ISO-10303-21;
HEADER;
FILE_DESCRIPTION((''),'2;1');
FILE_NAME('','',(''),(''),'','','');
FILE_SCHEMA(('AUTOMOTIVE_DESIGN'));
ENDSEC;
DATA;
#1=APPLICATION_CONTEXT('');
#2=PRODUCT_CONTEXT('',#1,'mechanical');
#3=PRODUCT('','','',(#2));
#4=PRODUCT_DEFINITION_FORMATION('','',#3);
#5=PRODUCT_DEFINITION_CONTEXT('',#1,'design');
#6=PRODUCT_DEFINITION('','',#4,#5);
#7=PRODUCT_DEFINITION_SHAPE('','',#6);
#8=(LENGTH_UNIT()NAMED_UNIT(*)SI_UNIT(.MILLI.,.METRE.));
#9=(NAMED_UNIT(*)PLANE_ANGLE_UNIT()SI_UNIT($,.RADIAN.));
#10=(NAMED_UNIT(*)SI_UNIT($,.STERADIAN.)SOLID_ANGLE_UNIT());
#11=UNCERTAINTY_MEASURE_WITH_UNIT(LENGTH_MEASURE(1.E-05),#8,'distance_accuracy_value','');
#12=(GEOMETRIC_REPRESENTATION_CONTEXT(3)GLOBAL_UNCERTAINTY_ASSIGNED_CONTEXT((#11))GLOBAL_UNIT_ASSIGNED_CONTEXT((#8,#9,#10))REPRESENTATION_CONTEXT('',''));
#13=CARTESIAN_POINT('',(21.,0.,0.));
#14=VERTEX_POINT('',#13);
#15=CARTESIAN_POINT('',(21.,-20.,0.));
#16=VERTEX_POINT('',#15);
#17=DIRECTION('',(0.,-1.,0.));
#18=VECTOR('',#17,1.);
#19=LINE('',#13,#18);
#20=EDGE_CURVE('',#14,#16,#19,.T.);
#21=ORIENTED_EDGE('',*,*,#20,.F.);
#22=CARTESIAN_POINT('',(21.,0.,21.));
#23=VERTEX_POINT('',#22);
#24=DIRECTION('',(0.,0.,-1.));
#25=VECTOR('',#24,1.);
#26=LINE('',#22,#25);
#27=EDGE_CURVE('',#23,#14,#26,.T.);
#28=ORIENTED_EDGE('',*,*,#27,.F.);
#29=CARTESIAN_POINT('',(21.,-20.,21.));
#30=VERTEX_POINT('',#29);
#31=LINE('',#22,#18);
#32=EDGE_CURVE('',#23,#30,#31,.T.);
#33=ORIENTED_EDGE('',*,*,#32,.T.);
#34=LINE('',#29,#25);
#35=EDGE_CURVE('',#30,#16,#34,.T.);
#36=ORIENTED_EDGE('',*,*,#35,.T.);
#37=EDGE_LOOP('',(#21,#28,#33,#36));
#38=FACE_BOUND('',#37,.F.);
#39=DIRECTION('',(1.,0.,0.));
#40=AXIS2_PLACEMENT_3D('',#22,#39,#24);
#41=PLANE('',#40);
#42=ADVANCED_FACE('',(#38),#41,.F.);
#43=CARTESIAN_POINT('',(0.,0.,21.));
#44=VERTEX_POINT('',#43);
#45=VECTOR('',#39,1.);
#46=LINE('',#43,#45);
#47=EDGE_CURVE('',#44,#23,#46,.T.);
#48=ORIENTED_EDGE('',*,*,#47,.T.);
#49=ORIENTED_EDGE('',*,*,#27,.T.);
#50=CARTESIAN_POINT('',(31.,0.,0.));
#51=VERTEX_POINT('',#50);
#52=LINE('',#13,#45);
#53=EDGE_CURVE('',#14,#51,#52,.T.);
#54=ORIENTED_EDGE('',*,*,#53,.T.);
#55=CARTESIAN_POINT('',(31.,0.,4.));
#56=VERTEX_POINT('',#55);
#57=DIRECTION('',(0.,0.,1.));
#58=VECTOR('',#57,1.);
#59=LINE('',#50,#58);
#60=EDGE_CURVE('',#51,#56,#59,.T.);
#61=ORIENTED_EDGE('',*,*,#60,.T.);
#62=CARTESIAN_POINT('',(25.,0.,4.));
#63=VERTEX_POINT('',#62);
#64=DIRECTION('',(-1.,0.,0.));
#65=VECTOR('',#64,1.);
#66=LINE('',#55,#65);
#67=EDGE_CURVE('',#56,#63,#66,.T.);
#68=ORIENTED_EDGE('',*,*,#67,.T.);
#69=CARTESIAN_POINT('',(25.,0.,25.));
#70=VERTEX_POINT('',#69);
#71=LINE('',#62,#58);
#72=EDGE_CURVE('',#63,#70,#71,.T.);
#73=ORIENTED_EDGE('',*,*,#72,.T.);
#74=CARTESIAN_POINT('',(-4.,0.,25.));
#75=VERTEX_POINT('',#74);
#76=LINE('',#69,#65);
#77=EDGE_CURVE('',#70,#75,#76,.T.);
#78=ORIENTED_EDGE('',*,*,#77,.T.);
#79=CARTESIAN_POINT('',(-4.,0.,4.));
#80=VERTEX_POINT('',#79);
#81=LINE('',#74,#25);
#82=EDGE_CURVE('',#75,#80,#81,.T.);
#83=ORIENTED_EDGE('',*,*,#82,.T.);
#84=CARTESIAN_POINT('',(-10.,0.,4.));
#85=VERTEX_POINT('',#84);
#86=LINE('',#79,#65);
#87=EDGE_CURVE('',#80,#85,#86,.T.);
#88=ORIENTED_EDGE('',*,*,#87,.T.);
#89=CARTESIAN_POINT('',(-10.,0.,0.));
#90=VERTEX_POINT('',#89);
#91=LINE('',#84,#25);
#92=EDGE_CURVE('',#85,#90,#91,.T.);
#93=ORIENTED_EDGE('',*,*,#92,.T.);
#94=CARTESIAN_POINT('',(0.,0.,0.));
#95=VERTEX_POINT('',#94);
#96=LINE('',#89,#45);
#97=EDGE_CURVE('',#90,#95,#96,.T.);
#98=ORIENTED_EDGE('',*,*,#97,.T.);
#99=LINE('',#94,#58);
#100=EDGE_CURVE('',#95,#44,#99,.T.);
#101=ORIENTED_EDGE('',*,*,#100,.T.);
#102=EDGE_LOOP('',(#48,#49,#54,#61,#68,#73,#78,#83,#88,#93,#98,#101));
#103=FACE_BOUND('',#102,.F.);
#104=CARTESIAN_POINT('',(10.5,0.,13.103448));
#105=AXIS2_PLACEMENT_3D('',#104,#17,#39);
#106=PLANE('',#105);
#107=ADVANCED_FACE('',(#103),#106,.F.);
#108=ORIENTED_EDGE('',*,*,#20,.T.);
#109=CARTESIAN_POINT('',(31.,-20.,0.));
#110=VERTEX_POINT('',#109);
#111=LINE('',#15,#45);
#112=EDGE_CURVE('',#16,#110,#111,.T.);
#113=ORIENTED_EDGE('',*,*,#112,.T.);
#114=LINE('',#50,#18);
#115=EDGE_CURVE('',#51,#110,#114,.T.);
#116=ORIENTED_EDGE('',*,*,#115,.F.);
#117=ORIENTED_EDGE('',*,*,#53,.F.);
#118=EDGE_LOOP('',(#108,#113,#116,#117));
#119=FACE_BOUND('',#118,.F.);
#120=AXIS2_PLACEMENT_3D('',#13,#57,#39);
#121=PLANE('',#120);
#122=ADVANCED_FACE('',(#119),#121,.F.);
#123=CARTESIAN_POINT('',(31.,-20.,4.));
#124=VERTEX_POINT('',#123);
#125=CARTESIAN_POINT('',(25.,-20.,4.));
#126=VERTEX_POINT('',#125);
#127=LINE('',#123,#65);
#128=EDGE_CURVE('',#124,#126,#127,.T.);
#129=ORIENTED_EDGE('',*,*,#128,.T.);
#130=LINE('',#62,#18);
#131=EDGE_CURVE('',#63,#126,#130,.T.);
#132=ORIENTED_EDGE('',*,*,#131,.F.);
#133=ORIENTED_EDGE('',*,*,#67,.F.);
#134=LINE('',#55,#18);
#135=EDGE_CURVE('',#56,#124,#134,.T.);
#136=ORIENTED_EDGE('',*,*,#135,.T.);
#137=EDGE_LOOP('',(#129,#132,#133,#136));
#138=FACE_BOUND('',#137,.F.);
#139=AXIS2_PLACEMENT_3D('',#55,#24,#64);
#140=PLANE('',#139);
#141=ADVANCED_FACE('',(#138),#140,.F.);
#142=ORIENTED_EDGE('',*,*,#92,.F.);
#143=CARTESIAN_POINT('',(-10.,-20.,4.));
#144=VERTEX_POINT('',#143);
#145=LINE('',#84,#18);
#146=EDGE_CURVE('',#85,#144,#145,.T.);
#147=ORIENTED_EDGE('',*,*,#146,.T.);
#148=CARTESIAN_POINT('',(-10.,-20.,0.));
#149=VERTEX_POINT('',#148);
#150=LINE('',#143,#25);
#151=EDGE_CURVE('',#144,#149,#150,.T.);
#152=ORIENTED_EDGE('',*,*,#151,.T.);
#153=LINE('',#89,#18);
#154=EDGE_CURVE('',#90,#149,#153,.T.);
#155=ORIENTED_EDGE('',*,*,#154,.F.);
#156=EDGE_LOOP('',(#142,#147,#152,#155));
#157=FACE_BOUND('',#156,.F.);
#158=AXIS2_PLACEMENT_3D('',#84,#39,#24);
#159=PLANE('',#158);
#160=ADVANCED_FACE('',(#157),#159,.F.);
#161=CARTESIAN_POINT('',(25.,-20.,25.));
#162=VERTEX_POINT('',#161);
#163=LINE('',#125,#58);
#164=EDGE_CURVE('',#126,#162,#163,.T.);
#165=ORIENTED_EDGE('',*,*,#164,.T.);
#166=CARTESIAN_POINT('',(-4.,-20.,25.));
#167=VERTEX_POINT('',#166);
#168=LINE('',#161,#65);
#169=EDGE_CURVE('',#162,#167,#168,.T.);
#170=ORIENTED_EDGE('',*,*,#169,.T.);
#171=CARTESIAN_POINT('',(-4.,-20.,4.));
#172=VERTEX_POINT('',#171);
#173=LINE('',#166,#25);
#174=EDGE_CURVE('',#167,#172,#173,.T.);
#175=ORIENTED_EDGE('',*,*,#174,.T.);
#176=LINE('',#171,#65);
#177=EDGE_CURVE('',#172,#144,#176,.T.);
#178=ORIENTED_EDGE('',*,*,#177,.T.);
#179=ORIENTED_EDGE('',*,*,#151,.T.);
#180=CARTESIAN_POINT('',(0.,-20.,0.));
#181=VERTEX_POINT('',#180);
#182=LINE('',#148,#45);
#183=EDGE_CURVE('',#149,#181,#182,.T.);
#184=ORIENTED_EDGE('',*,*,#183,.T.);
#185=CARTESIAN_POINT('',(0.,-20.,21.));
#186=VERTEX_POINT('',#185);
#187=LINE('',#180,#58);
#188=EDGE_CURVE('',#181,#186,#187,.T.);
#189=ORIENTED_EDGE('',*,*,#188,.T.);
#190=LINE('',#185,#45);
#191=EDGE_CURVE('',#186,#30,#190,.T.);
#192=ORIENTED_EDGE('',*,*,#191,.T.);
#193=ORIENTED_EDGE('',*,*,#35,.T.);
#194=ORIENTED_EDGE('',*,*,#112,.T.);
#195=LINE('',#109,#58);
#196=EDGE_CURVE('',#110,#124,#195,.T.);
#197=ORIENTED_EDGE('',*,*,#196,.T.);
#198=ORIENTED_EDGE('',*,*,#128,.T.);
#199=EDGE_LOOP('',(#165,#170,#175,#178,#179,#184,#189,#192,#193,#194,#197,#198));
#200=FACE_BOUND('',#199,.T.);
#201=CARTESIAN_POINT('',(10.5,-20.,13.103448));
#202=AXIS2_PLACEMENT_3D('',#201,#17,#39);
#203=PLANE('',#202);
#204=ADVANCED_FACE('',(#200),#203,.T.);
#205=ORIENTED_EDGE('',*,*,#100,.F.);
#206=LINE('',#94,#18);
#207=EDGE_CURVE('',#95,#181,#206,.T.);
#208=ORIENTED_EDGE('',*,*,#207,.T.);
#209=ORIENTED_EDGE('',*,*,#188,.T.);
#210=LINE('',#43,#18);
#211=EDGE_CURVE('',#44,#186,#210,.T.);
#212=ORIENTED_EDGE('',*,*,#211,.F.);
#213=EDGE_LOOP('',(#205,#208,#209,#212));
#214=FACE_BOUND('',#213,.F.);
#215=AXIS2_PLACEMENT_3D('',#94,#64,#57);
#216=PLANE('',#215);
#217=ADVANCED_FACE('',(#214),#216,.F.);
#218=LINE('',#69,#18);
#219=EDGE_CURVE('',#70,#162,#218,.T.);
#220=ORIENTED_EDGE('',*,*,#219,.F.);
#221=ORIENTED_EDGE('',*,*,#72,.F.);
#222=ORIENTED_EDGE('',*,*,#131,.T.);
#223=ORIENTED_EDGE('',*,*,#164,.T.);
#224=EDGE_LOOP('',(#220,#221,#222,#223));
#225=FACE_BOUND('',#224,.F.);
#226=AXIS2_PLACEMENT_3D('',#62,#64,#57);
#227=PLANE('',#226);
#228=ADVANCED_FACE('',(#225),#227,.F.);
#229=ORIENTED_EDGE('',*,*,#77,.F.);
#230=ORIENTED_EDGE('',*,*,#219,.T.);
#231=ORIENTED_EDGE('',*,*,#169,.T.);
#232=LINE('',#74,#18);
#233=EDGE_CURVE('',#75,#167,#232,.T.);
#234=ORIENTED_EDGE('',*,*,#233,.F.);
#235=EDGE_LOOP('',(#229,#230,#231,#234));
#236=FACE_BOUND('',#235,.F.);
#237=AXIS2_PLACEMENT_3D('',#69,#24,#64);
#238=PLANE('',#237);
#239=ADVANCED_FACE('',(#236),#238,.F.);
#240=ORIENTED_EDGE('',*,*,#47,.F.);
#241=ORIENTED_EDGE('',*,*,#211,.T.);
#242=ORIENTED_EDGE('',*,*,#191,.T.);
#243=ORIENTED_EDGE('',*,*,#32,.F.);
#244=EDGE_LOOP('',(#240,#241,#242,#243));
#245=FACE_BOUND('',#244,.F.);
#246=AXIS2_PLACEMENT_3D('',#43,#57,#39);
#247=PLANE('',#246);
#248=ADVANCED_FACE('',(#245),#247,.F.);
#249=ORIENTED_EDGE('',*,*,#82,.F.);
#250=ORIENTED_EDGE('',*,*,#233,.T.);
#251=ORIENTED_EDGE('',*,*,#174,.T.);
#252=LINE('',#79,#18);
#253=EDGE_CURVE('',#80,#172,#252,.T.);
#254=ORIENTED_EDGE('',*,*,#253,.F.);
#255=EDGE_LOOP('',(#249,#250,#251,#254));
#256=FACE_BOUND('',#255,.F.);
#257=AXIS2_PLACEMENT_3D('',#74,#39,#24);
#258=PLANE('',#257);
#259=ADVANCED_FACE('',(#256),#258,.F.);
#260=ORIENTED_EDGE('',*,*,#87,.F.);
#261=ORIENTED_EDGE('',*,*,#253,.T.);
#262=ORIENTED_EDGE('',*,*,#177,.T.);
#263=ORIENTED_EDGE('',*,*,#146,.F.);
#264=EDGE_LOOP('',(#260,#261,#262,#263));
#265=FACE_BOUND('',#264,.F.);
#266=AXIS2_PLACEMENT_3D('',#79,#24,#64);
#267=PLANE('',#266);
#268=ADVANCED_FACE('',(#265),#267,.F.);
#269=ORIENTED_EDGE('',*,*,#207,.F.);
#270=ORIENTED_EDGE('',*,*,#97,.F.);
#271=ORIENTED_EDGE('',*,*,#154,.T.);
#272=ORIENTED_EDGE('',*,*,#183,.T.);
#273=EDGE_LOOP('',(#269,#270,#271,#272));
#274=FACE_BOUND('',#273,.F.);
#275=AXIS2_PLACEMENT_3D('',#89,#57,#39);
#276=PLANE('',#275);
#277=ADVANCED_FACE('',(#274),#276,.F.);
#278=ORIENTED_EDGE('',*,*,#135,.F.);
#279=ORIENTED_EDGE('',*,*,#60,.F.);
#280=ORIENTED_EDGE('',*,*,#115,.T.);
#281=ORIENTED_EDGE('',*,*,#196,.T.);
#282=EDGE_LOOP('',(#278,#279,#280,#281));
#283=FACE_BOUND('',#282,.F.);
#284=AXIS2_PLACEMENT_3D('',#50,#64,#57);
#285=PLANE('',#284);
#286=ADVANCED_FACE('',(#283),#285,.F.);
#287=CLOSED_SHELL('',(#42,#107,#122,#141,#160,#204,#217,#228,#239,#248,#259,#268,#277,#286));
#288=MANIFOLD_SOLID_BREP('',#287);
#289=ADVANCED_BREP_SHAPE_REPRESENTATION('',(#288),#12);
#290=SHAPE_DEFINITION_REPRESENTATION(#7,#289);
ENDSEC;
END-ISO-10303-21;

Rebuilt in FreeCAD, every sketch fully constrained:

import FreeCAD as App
import Part
import Sketcher

V = App.Vector

doc = App.newDocument("Part")
body = doc.addObject("PartDesign::Body", "Body")

sketch1 = body.newObject("Sketcher::SketchObject", "Sketch")
sketch1.AttachmentSupport = (doc.getObject("XZ_Plane"), [""])
sketch1.MapMode = "FlatFace"
sketch1.addGeometry([
    Part.LineSegment(V(0, 21, 0), V(21, 21, 0)),
    Part.LineSegment(V(21, 21, 0), V(21, 0, 0)),
    Part.LineSegment(V(21, 0, 0), V(31, 0, 0)),
    Part.LineSegment(V(31, 0, 0), V(31, 4, 0)),
    Part.LineSegment(V(31, 4, 0), V(25, 4, 0)),
    Part.LineSegment(V(25, 4, 0), V(25, 25, 0)),
    Part.LineSegment(V(25, 25, 0), V(-4, 25, 0)),
    Part.LineSegment(V(-4, 25, 0), V(-4, 4, 0)),
    Part.LineSegment(V(-4, 4, 0), V(-10, 4, 0)),
    Part.LineSegment(V(-10, 4, 0), V(-10, 0, 0)),
    Part.LineSegment(V(-10, 0, 0), V(0, 0, 0)),
    Part.LineSegment(V(0, 0, 0), V(0, 21, 0)),
], False)
sketch1.addConstraint([
    Sketcher.Constraint("Coincident", 0, 2, 1, 1),
    Sketcher.Constraint("Coincident", 1, 2, 2, 1),
    Sketcher.Constraint("Coincident", 2, 2, 3, 1),
    Sketcher.Constraint("Coincident", 3, 2, 4, 1),
    Sketcher.Constraint("Coincident", 4, 2, 5, 1),
    Sketcher.Constraint("Coincident", 5, 2, 6, 1),
    Sketcher.Constraint("Coincident", 6, 2, 7, 1),
    Sketcher.Constraint("Coincident", 7, 2, 8, 1),
    Sketcher.Constraint("Coincident", 8, 2, 9, 1),
    Sketcher.Constraint("Coincident", 9, 2, 10, 1),
    Sketcher.Constraint("Coincident", 10, 2, 11, 1),
    Sketcher.Constraint("Coincident", 11, 2, 0, 1),
    Sketcher.Constraint("Horizontal", 0),
    Sketcher.Constraint("Vertical", 1),
    Sketcher.Constraint("Horizontal", 2),
    Sketcher.Constraint("Vertical", 3),
    Sketcher.Constraint("Horizontal", 4),
    Sketcher.Constraint("Vertical", 5),
    Sketcher.Constraint("Horizontal", 6),
    Sketcher.Constraint("Vertical", 7),
    Sketcher.Constraint("Horizontal", 8),
    Sketcher.Constraint("Vertical", 9),
    Sketcher.Constraint("Horizontal", 10),
    Sketcher.Constraint("Vertical", 11),
    Sketcher.Constraint("Coincident", 10, 2, -1, 1),
    Sketcher.Constraint("PointOnObject", 1, 2, -1),
    Sketcher.Constraint("Horizontal", 4, 2, 7, 2),
    Sketcher.Constraint("Equal", 4, 8),
    Sketcher.Constraint("Equal", 2, 10),
    Sketcher.Constraint("Equal", 0, 1),
    Sketcher.Constraint("Equal", 1, 5),
    Sketcher.Constraint("DistanceX", 0, 1, 0, 2, 21.0),
    Sketcher.Constraint("DistanceX", 2, 1, 2, 2, 10.0),
    Sketcher.Constraint("DistanceX", 4, 2, 4, 1, 6.0),
    Sketcher.Constraint("DistanceY", 3, 1, 3, 2, 4.0),
])
pad1 = body.newObject("PartDesign::Pad", "Pad")
pad1.Profile = sketch1
pad1.Length = 20

doc.recompute()
